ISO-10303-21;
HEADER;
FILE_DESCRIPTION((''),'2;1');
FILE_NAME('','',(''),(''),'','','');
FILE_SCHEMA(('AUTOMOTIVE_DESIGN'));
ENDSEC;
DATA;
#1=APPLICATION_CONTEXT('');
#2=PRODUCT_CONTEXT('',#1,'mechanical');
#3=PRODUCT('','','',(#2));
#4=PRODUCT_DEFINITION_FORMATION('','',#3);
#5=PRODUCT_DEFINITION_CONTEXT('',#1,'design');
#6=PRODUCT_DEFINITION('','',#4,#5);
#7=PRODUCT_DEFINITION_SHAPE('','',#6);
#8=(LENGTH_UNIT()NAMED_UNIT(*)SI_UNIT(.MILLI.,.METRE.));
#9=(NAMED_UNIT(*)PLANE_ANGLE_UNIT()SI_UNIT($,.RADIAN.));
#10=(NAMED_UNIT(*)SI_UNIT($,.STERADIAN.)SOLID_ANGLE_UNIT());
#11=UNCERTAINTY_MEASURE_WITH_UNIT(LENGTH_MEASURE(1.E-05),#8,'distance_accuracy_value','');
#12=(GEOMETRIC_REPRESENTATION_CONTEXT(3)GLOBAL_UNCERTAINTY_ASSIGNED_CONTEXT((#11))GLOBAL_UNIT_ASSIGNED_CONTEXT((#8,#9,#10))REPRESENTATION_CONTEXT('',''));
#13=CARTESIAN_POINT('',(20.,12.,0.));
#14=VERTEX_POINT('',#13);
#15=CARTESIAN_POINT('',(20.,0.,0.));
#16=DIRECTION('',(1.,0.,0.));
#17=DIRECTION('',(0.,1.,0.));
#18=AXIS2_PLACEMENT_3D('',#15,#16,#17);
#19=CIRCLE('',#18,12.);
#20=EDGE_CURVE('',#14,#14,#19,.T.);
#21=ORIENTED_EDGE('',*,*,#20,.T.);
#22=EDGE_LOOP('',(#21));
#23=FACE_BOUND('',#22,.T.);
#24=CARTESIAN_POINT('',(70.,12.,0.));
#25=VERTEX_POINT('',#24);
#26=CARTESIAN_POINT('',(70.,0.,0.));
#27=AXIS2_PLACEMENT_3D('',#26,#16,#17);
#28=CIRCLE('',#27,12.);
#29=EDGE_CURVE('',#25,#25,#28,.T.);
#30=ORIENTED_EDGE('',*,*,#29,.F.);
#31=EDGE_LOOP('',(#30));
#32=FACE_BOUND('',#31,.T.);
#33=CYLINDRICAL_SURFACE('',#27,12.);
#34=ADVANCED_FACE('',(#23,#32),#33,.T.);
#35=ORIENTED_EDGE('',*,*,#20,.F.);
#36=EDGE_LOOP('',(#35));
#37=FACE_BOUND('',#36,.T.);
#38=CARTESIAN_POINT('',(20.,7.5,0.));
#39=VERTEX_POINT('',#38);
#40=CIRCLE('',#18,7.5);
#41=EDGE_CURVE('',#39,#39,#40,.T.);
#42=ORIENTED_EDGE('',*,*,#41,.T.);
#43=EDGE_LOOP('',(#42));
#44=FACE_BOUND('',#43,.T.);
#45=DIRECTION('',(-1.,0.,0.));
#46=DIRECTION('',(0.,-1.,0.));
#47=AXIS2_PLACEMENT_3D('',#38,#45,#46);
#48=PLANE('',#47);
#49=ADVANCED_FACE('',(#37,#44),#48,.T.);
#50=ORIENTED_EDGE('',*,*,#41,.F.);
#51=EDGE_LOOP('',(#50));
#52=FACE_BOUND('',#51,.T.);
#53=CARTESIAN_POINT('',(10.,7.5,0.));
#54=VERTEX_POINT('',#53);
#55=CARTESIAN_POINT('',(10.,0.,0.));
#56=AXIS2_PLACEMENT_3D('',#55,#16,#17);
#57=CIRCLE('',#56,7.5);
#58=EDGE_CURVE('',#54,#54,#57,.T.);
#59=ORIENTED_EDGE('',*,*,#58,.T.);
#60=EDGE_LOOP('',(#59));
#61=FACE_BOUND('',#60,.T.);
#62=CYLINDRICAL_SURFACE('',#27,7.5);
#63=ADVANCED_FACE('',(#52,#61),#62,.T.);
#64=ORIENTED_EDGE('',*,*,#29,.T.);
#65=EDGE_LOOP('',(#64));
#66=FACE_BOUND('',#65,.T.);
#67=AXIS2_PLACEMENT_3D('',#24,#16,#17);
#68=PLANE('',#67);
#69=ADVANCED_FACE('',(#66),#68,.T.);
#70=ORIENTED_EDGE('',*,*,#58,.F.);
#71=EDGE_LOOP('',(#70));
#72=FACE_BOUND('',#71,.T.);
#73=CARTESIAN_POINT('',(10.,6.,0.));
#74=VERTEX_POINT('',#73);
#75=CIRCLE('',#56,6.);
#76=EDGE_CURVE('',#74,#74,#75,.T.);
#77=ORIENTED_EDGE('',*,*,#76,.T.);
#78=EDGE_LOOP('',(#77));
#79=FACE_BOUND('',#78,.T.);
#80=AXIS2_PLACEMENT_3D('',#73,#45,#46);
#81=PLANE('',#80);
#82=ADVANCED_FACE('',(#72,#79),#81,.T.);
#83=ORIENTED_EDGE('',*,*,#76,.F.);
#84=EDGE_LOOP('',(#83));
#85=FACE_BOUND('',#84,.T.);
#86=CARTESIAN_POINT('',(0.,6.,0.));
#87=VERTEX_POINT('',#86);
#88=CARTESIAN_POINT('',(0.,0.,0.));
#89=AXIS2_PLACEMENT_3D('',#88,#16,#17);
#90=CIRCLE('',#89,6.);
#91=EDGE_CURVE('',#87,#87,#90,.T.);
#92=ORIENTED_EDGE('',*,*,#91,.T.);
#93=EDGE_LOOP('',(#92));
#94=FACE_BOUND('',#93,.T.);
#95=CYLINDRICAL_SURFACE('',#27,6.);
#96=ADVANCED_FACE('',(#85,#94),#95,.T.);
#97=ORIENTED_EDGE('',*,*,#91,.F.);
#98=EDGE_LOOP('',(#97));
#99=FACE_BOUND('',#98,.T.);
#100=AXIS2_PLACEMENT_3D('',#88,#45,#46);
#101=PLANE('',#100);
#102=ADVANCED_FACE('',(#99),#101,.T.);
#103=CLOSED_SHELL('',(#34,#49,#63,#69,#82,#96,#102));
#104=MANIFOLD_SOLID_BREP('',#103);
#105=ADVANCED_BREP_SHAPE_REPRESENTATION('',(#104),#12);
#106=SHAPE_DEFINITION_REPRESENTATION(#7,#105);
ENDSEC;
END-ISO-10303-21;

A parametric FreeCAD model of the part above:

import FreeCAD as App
import Part
import Sketcher
from FreeCAD import Vector
Q = App.Units.Quantity

doc = App.newDocument("Part")
body = doc.addObject("PartDesign::Body", "Body")

sketch1 = body.newObject("Sketcher::SketchObject", "Sketch")
sketch1.AttachmentSupport = (doc.getObject("XY_Plane"), [""])
sketch1.MapMode = "FlatFace"
sketch1.addGeometry([
    Part.LineSegment(Vector(0, 6, 0), Vector(0, 0, 0)),
    Part.LineSegment(Vector(0, 0, 0), Vector(70, 0, 0)),
    Part.LineSegment(Vector(70, 0, 0), Vector(70, 12, 0)),
    Part.LineSegment(Vector(70, 12, 0), Vector(20, 12, 0)),
    Part.LineSegment(Vector(20, 12, 0), Vector(20, 7.5, 0)),
    Part.LineSegment(Vector(20, 7.5, 0), Vector(10, 7.5, 0)),
    Part.LineSegment(Vector(10, 7.5, 0), Vector(10, 6, 0)),
    Part.LineSegment(Vector(10, 6, 0), Vector(0, 6, 0)),
], False)
sketch1.addConstraint([
    Sketcher.Constraint("Coincident", 0, 2, 1, 1),
    Sketcher.Constraint("Coincident", 1, 2, 2, 1),
    Sketcher.Constraint("Coincident", 2, 2, 3, 1),
    Sketcher.Constraint("Coincident", 3, 2, 4, 1),
    Sketcher.Constraint("Coincident", 4, 2, 5, 1),
    Sketcher.Constraint("Coincident", 5, 2, 6, 1),
    Sketcher.Constraint("Coincident", 6, 2, 7, 1),
    Sketcher.Constraint("Coincident", 7, 2, 0, 1),
    Sketcher.Constraint("Vertical", 0),
    Sketcher.Constraint("Horizontal", 1),
    Sketcher.Constraint("Vertical", 2),
    Sketcher.Constraint("Horizontal", 3),
    Sketcher.Constraint("Vertical", 4),
    Sketcher.Constraint("Horizontal", 5),
    Sketcher.Constraint("Vertical", 6),
    Sketcher.Constraint("Horizontal", 7),
    Sketcher.Constraint("Coincident", 0, 2, -1, 1),
    Sketcher.Constraint("Equal", 5, 7),
    Sketcher.Constraint("DistanceX", 1, 1, 1, 2, Q("70 mm")),
    Sketcher.Constraint("DistanceX", 3, 2, 3, 1, Q("50 mm")),
    Sketcher.Constraint("DistanceY", 0, 2, 0, 1, Q("6 mm")),
    Sketcher.Constraint("DistanceY", 2, 1, 2, 2, Q("12 mm")),
    Sketcher.Constraint("DistanceY", 4, 2, 4, 1, Q("4.5 mm")),
])
revolution = body.newObject("PartDesign::Revolution", "Revolution")
revolution.Profile = sketch1
revolution.ReferenceAxis = (sketch1, ["H_Axis"])
revolution.Angle = 360

doc.recompute()
